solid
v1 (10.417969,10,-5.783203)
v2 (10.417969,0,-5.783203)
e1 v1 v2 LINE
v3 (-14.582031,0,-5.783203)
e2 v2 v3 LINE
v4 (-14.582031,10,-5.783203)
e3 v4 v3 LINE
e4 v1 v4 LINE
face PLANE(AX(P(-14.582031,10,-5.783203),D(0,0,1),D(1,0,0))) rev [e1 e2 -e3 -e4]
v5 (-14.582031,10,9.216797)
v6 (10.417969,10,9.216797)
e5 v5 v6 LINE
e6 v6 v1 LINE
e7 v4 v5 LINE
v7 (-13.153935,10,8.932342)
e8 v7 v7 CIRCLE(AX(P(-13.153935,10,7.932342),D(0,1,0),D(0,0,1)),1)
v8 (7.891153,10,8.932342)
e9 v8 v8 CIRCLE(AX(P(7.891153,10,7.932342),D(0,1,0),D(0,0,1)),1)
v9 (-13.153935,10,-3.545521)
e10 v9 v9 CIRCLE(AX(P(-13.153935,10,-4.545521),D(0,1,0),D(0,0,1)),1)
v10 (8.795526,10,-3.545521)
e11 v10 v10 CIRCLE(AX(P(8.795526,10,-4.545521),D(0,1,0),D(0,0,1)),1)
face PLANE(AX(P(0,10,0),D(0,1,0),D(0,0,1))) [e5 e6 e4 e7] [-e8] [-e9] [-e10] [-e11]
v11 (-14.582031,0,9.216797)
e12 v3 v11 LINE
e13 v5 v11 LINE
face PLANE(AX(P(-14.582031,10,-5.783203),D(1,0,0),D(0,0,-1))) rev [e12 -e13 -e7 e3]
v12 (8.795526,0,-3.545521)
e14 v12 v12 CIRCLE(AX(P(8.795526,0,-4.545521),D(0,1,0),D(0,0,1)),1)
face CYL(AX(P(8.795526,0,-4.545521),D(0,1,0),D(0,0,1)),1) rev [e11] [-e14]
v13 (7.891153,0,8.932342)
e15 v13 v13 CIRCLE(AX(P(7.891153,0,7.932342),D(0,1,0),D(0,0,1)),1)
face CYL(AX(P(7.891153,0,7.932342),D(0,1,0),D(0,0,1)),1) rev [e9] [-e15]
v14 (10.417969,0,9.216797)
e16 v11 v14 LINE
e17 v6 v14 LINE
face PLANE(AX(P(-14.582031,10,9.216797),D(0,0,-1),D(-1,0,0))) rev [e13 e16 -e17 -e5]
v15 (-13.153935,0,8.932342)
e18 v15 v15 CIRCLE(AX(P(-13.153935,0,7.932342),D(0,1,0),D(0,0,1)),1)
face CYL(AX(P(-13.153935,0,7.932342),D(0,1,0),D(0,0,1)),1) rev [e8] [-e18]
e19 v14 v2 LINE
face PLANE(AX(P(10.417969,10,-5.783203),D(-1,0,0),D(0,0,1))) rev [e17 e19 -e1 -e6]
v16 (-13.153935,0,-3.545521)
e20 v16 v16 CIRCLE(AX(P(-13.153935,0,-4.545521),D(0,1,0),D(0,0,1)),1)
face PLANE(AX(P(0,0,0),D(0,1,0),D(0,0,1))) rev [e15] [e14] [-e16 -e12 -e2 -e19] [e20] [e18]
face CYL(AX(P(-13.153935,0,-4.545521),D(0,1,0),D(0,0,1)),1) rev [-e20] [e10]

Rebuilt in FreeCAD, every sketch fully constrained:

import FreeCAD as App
import Part
import Sketcher
from FreeCAD import Vector


def add_polygon(sketch, points):
    """Adds a closed chain of lines whose ends are joined by coincident constraints."""
    first, n = sketch.GeometryCount, len(points)
    for a, b in zip(points, points[1:] + points[:1]):
        sketch.addGeometry(Part.LineSegment(App.Vector(*a, 0), App.Vector(*b, 0)), False)
    for i in range(n):
        sketch.addConstraint(Sketcher.Constraint("Coincident", first + i, 2, first + (i + 1) % n, 1))

doc = App.newDocument("Part")
body = doc.addObject("PartDesign::Body", "Body")

# Sketch on XZ plane
sketch1 = body.newObject("Sketcher::SketchObject", "Sketch")
sketch1.AttachmentSupport = (doc.getObject("XZ_Plane"), [""])
sketch1.MapMode = "FlatFace"
add_polygon(sketch1, [(-15, -6), (-15, 9), (10, 9), (10, -6)])  # lines 0-3
sketch1.addConstraint([
    Sketcher.Constraint("Vertical", 0),
    Sketcher.Constraint("Horizontal", 1),
    Sketcher.Constraint("Vertical", 2),
    Sketcher.Constraint("Horizontal", 3),
    Sketcher.Constraint("DistanceX", 1, 1, 1, 2, 25.0),
    Sketcher.Constraint("DistanceY", 0, 1, 0, 2, 15.0),
    Sketcher.Constraint("DistanceX", 0, 2, -1, 1, 14.582031),
    Sketcher.Constraint("DistanceY", -1, 1, 0, 2, 9.216797),
])
pad1 = body.newObject("PartDesign::Pad", "Pad")
pad1.Profile = sketch1
pad1.Length = 10
pad1.Reversed = True

# Sketch on XZ plane
sketch2 = body.newObject("Sketcher::SketchObject", "Sketch001")
sketch2.AttachmentSupport = (doc.getObject("XZ_Plane"), [""])
sketch2.MapMode = "FlatFace"
sketch2.AttachmentOffset = App.Placement(Vector(0, 0, -10), App.Rotation())
sketch2.addGeometry([
    Part.Circle(Vector(-13.2, -4.5, 0), Vector(0, 0, 1), 1),
    Part.Circle(Vector(-13.2, 7.9, 0), Vector(0, 0, 1), 1),
    Part.Circle(Vector(8.8, -4.5, 0), Vector(0, 0, 1), 1),
    Part.Circle(Vector(7.9, 7.9, 0), Vector(0, 0, 1), 1),
], False)
sketch2.addConstraint([
    Sketcher.Constraint("Equal", 0, 1),
    Sketcher.Constraint("Equal", 1, 2),
    Sketcher.Constraint("Equal", 2, 3),
    Sketcher.Constraint("Horizontal", 0, 3, 2, 3),
    Sketcher.Constraint("Horizontal", 1, 3, 3, 3),
    Sketcher.Constraint("Vertical", 0, 3, 1, 3),
    Sketcher.Constraint("Diameter", 0, 2.0),
    Sketcher.Constraint("DistanceY", 0, 3, -1, 1, 4.545521),
    Sketcher.Constraint("DistanceX", 0, 3, 2, 3, 21.949462),
    Sketcher.Constraint("DistanceX", 1, 3, 3, 3, 21.045089),
    Sketcher.Constraint("DistanceX", 0, 3, -1, 1, 13.153935),
    Sketcher.Constraint("DistanceY", -1, 1, 1, 3, 7.932342),
])
pocket1 = body.newObject("PartDesign::Pocket", "Pocket")
pocket1.Profile = sketch2
pocket1.Type = "ThroughAll"
pocket1.Reversed = True

doc.recompute()
